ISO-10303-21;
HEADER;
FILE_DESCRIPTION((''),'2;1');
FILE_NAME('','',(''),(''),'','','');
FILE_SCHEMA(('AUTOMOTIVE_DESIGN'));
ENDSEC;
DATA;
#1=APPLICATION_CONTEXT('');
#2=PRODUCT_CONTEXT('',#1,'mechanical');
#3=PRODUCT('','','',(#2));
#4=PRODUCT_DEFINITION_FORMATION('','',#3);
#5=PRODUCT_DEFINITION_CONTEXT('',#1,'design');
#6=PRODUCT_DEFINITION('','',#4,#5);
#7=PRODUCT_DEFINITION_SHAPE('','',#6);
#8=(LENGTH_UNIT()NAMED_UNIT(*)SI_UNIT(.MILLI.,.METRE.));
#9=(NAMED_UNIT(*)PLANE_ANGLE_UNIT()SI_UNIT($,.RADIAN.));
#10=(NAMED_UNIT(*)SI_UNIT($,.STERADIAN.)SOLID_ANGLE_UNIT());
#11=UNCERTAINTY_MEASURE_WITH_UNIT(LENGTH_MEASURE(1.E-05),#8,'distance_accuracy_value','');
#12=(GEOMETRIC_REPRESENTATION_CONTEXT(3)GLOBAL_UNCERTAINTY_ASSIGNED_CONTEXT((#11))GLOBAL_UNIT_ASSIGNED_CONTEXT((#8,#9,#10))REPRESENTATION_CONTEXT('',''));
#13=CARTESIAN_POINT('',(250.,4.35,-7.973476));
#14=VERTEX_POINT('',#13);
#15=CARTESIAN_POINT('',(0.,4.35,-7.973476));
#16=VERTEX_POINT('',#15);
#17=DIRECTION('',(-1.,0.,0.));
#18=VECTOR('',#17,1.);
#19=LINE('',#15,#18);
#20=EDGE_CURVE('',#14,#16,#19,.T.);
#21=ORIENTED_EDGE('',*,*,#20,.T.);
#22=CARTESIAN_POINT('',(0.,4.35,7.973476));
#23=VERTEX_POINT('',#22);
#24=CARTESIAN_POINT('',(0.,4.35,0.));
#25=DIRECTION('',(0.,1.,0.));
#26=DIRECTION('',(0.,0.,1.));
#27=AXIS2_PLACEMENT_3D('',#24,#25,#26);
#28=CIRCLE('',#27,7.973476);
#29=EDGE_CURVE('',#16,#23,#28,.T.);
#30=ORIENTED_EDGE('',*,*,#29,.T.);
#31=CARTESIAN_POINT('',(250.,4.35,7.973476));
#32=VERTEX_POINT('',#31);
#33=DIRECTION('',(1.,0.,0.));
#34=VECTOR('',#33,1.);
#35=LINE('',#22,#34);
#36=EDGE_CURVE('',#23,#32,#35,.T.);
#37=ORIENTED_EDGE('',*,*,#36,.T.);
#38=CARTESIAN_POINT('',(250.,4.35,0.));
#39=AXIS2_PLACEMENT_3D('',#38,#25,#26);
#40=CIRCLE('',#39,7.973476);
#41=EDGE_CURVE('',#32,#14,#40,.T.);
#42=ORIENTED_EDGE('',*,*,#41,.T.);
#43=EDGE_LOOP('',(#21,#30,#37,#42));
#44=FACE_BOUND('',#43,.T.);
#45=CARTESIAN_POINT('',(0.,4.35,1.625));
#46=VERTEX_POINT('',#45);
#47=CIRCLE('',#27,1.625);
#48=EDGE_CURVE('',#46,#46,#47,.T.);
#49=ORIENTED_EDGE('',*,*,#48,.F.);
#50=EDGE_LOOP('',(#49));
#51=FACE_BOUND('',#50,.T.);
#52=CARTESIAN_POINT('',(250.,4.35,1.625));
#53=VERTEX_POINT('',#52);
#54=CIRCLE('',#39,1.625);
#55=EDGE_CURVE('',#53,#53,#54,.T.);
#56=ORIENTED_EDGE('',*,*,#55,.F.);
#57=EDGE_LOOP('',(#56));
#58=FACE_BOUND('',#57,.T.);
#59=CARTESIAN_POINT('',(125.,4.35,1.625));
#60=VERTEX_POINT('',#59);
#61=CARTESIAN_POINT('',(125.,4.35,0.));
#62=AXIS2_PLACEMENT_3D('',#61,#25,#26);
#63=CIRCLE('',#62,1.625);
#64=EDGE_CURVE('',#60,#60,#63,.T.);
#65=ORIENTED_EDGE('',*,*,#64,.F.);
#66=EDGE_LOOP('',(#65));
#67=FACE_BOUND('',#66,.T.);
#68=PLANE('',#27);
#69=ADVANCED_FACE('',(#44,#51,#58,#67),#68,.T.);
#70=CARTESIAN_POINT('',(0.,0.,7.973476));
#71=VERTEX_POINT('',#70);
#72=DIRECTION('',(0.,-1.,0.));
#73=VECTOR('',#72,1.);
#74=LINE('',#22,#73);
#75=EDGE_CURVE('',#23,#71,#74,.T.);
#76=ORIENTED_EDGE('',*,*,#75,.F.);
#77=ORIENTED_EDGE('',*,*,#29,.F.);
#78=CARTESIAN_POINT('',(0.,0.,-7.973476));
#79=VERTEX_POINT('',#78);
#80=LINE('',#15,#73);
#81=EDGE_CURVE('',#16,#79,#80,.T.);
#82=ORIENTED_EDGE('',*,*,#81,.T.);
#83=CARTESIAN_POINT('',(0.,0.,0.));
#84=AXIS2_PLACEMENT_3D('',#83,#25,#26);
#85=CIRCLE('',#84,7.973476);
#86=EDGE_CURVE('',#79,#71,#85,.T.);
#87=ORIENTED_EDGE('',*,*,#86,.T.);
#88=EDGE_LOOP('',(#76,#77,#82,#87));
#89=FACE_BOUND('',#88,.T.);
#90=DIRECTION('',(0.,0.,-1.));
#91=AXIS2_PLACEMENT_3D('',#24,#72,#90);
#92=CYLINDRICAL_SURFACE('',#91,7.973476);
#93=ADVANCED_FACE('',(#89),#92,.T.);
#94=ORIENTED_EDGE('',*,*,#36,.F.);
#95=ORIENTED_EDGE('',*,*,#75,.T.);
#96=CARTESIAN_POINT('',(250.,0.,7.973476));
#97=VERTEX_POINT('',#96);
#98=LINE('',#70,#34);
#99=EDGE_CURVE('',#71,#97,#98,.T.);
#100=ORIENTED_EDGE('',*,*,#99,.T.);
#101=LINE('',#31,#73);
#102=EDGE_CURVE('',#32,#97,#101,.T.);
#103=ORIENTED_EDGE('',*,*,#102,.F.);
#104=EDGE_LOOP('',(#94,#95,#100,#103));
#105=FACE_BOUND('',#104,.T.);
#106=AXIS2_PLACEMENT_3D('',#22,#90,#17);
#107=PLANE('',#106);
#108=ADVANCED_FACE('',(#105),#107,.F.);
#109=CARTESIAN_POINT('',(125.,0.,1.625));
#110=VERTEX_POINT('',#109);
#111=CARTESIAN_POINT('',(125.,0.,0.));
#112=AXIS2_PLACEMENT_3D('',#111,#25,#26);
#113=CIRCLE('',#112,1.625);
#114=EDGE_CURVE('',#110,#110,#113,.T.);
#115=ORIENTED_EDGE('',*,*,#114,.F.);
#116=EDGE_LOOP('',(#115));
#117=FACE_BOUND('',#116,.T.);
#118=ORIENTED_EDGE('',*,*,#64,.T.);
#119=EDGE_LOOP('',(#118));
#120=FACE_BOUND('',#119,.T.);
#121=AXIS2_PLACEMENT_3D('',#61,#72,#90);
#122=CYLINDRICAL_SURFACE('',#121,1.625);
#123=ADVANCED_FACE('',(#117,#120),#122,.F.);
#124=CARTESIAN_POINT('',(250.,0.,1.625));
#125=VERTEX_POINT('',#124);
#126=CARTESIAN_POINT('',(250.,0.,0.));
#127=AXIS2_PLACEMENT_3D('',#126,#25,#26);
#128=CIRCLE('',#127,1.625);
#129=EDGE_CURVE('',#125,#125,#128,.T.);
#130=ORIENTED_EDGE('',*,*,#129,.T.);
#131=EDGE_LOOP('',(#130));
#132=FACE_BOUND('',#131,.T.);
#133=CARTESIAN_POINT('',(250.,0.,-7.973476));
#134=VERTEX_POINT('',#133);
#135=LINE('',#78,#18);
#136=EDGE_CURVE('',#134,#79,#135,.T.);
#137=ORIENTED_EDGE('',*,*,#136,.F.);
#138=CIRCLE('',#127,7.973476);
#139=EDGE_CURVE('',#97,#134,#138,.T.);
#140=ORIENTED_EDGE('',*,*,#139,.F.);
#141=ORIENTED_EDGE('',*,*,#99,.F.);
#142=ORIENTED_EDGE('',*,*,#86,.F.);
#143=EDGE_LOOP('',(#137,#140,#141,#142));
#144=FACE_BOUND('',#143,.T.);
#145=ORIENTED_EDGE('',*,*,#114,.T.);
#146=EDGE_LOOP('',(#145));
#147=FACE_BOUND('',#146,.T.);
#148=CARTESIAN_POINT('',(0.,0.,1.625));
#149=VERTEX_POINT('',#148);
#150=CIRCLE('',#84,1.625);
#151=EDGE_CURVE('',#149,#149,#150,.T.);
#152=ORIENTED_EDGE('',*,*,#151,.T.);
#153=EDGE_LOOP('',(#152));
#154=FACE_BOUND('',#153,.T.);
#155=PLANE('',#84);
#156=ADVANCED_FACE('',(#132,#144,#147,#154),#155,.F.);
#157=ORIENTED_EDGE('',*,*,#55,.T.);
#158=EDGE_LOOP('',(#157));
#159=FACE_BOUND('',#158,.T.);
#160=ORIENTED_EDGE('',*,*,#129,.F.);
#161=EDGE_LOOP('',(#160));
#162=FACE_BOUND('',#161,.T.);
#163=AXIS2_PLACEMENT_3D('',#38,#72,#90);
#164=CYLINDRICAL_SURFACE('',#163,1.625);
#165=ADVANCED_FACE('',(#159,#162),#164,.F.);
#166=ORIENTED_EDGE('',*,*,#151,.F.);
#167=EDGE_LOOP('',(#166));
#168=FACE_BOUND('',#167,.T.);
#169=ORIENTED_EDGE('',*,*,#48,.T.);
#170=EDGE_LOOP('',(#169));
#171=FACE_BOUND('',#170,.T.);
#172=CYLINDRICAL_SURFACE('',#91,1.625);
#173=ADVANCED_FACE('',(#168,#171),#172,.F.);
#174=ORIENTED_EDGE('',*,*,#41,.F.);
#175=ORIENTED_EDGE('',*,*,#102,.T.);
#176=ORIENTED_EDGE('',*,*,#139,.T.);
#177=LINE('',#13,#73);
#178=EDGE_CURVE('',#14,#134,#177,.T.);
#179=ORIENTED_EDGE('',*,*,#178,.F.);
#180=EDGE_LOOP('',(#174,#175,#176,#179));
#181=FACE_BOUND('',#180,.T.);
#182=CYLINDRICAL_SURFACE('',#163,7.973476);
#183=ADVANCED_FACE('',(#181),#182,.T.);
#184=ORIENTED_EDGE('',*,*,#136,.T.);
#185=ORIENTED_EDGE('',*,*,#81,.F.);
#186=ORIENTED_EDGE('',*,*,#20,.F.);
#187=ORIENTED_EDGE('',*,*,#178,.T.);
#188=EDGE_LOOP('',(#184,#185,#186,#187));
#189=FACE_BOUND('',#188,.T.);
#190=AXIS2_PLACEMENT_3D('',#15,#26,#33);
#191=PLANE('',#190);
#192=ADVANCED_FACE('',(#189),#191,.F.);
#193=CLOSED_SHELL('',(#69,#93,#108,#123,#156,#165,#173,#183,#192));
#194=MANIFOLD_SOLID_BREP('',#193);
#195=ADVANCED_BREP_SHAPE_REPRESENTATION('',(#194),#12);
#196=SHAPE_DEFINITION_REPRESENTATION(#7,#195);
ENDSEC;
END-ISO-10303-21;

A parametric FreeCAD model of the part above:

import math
import FreeCAD as App
import Part
import Sketcher

V = App.Vector

doc = App.newDocument("Part")
body = doc.addObject("PartDesign::Body", "Body")

# Sketch on XZ plane
sketch1 = body.newObject("Sketcher::SketchObject", "Sketch")
sketch1.AttachmentSupport = (doc.getObject("XZ_Plane"), [""])
sketch1.MapMode = "FlatFace"
sketch1.addGeometry([
    Part.LineSegment(V(250, -7.973476, 0), V(0, -7.973476, 0)),  # 0
    Part.ArcOfCircle(Part.Circle(V(0, 0, 0), V(0, 0, 1), 7.973476), math.radians(90), math.radians(270)),  # 1
    Part.LineSegment(V(0, 7.973476, 0), V(250, 7.973476, 0)),  # 2
    Part.ArcOfCircle(Part.Circle(V(250, 0, 0), V(0, 0, 1), 7.973476), math.radians(-90), math.radians(90)),  # 3
    Part.Circle(V(250, 0, 0), V(0, 0, 1), 1.625),  # 4
    Part.Circle(V(125, 0, 0), V(0, 0, 1), 1.625),  # 5
    Part.Circle(V(0, 0, 0), V(0, 0, 1), 1.625),  # 6
], False)
sketch1.addConstraint([
    Sketcher.Constraint("Tangent", 0, 2, 1, 2),
    Sketcher.Constraint("Tangent", 1, 1, 2, 1),
    Sketcher.Constraint("Tangent", 2, 2, 3, 2),
    Sketcher.Constraint("Tangent", 3, 1, 0, 1),
    Sketcher.Constraint("Horizontal", 0),
    Sketcher.Constraint("Horizontal", 2),
    Sketcher.Constraint("Coincident", 1, 3, -1, 1),
    Sketcher.Constraint("Coincident", 6, 3, -1, 1),
    Sketcher.Constraint("Coincident", 4, 3, 3, 3),
    Sketcher.Constraint("Equal", 4, 5),
    Sketcher.Constraint("Equal", 5, 6),
    Sketcher.Constraint("PointOnObject", 5, 3, -1),
    Sketcher.Constraint("Diameter", 4, 3.25),
    Sketcher.Constraint("DistanceX", 0, 2, 0, 1, 250.0),
    Sketcher.Constraint("DistanceX", -1, 1, 5, 3, 125.0),
    Sketcher.Constraint("Radius", 1, 7.973476),
])
pad1 = body.newObject("PartDesign::Pad", "Pad")
pad1.Profile = sketch1
pad1.Length = 4.35
pad1.Reversed = True

doc.recompute()
